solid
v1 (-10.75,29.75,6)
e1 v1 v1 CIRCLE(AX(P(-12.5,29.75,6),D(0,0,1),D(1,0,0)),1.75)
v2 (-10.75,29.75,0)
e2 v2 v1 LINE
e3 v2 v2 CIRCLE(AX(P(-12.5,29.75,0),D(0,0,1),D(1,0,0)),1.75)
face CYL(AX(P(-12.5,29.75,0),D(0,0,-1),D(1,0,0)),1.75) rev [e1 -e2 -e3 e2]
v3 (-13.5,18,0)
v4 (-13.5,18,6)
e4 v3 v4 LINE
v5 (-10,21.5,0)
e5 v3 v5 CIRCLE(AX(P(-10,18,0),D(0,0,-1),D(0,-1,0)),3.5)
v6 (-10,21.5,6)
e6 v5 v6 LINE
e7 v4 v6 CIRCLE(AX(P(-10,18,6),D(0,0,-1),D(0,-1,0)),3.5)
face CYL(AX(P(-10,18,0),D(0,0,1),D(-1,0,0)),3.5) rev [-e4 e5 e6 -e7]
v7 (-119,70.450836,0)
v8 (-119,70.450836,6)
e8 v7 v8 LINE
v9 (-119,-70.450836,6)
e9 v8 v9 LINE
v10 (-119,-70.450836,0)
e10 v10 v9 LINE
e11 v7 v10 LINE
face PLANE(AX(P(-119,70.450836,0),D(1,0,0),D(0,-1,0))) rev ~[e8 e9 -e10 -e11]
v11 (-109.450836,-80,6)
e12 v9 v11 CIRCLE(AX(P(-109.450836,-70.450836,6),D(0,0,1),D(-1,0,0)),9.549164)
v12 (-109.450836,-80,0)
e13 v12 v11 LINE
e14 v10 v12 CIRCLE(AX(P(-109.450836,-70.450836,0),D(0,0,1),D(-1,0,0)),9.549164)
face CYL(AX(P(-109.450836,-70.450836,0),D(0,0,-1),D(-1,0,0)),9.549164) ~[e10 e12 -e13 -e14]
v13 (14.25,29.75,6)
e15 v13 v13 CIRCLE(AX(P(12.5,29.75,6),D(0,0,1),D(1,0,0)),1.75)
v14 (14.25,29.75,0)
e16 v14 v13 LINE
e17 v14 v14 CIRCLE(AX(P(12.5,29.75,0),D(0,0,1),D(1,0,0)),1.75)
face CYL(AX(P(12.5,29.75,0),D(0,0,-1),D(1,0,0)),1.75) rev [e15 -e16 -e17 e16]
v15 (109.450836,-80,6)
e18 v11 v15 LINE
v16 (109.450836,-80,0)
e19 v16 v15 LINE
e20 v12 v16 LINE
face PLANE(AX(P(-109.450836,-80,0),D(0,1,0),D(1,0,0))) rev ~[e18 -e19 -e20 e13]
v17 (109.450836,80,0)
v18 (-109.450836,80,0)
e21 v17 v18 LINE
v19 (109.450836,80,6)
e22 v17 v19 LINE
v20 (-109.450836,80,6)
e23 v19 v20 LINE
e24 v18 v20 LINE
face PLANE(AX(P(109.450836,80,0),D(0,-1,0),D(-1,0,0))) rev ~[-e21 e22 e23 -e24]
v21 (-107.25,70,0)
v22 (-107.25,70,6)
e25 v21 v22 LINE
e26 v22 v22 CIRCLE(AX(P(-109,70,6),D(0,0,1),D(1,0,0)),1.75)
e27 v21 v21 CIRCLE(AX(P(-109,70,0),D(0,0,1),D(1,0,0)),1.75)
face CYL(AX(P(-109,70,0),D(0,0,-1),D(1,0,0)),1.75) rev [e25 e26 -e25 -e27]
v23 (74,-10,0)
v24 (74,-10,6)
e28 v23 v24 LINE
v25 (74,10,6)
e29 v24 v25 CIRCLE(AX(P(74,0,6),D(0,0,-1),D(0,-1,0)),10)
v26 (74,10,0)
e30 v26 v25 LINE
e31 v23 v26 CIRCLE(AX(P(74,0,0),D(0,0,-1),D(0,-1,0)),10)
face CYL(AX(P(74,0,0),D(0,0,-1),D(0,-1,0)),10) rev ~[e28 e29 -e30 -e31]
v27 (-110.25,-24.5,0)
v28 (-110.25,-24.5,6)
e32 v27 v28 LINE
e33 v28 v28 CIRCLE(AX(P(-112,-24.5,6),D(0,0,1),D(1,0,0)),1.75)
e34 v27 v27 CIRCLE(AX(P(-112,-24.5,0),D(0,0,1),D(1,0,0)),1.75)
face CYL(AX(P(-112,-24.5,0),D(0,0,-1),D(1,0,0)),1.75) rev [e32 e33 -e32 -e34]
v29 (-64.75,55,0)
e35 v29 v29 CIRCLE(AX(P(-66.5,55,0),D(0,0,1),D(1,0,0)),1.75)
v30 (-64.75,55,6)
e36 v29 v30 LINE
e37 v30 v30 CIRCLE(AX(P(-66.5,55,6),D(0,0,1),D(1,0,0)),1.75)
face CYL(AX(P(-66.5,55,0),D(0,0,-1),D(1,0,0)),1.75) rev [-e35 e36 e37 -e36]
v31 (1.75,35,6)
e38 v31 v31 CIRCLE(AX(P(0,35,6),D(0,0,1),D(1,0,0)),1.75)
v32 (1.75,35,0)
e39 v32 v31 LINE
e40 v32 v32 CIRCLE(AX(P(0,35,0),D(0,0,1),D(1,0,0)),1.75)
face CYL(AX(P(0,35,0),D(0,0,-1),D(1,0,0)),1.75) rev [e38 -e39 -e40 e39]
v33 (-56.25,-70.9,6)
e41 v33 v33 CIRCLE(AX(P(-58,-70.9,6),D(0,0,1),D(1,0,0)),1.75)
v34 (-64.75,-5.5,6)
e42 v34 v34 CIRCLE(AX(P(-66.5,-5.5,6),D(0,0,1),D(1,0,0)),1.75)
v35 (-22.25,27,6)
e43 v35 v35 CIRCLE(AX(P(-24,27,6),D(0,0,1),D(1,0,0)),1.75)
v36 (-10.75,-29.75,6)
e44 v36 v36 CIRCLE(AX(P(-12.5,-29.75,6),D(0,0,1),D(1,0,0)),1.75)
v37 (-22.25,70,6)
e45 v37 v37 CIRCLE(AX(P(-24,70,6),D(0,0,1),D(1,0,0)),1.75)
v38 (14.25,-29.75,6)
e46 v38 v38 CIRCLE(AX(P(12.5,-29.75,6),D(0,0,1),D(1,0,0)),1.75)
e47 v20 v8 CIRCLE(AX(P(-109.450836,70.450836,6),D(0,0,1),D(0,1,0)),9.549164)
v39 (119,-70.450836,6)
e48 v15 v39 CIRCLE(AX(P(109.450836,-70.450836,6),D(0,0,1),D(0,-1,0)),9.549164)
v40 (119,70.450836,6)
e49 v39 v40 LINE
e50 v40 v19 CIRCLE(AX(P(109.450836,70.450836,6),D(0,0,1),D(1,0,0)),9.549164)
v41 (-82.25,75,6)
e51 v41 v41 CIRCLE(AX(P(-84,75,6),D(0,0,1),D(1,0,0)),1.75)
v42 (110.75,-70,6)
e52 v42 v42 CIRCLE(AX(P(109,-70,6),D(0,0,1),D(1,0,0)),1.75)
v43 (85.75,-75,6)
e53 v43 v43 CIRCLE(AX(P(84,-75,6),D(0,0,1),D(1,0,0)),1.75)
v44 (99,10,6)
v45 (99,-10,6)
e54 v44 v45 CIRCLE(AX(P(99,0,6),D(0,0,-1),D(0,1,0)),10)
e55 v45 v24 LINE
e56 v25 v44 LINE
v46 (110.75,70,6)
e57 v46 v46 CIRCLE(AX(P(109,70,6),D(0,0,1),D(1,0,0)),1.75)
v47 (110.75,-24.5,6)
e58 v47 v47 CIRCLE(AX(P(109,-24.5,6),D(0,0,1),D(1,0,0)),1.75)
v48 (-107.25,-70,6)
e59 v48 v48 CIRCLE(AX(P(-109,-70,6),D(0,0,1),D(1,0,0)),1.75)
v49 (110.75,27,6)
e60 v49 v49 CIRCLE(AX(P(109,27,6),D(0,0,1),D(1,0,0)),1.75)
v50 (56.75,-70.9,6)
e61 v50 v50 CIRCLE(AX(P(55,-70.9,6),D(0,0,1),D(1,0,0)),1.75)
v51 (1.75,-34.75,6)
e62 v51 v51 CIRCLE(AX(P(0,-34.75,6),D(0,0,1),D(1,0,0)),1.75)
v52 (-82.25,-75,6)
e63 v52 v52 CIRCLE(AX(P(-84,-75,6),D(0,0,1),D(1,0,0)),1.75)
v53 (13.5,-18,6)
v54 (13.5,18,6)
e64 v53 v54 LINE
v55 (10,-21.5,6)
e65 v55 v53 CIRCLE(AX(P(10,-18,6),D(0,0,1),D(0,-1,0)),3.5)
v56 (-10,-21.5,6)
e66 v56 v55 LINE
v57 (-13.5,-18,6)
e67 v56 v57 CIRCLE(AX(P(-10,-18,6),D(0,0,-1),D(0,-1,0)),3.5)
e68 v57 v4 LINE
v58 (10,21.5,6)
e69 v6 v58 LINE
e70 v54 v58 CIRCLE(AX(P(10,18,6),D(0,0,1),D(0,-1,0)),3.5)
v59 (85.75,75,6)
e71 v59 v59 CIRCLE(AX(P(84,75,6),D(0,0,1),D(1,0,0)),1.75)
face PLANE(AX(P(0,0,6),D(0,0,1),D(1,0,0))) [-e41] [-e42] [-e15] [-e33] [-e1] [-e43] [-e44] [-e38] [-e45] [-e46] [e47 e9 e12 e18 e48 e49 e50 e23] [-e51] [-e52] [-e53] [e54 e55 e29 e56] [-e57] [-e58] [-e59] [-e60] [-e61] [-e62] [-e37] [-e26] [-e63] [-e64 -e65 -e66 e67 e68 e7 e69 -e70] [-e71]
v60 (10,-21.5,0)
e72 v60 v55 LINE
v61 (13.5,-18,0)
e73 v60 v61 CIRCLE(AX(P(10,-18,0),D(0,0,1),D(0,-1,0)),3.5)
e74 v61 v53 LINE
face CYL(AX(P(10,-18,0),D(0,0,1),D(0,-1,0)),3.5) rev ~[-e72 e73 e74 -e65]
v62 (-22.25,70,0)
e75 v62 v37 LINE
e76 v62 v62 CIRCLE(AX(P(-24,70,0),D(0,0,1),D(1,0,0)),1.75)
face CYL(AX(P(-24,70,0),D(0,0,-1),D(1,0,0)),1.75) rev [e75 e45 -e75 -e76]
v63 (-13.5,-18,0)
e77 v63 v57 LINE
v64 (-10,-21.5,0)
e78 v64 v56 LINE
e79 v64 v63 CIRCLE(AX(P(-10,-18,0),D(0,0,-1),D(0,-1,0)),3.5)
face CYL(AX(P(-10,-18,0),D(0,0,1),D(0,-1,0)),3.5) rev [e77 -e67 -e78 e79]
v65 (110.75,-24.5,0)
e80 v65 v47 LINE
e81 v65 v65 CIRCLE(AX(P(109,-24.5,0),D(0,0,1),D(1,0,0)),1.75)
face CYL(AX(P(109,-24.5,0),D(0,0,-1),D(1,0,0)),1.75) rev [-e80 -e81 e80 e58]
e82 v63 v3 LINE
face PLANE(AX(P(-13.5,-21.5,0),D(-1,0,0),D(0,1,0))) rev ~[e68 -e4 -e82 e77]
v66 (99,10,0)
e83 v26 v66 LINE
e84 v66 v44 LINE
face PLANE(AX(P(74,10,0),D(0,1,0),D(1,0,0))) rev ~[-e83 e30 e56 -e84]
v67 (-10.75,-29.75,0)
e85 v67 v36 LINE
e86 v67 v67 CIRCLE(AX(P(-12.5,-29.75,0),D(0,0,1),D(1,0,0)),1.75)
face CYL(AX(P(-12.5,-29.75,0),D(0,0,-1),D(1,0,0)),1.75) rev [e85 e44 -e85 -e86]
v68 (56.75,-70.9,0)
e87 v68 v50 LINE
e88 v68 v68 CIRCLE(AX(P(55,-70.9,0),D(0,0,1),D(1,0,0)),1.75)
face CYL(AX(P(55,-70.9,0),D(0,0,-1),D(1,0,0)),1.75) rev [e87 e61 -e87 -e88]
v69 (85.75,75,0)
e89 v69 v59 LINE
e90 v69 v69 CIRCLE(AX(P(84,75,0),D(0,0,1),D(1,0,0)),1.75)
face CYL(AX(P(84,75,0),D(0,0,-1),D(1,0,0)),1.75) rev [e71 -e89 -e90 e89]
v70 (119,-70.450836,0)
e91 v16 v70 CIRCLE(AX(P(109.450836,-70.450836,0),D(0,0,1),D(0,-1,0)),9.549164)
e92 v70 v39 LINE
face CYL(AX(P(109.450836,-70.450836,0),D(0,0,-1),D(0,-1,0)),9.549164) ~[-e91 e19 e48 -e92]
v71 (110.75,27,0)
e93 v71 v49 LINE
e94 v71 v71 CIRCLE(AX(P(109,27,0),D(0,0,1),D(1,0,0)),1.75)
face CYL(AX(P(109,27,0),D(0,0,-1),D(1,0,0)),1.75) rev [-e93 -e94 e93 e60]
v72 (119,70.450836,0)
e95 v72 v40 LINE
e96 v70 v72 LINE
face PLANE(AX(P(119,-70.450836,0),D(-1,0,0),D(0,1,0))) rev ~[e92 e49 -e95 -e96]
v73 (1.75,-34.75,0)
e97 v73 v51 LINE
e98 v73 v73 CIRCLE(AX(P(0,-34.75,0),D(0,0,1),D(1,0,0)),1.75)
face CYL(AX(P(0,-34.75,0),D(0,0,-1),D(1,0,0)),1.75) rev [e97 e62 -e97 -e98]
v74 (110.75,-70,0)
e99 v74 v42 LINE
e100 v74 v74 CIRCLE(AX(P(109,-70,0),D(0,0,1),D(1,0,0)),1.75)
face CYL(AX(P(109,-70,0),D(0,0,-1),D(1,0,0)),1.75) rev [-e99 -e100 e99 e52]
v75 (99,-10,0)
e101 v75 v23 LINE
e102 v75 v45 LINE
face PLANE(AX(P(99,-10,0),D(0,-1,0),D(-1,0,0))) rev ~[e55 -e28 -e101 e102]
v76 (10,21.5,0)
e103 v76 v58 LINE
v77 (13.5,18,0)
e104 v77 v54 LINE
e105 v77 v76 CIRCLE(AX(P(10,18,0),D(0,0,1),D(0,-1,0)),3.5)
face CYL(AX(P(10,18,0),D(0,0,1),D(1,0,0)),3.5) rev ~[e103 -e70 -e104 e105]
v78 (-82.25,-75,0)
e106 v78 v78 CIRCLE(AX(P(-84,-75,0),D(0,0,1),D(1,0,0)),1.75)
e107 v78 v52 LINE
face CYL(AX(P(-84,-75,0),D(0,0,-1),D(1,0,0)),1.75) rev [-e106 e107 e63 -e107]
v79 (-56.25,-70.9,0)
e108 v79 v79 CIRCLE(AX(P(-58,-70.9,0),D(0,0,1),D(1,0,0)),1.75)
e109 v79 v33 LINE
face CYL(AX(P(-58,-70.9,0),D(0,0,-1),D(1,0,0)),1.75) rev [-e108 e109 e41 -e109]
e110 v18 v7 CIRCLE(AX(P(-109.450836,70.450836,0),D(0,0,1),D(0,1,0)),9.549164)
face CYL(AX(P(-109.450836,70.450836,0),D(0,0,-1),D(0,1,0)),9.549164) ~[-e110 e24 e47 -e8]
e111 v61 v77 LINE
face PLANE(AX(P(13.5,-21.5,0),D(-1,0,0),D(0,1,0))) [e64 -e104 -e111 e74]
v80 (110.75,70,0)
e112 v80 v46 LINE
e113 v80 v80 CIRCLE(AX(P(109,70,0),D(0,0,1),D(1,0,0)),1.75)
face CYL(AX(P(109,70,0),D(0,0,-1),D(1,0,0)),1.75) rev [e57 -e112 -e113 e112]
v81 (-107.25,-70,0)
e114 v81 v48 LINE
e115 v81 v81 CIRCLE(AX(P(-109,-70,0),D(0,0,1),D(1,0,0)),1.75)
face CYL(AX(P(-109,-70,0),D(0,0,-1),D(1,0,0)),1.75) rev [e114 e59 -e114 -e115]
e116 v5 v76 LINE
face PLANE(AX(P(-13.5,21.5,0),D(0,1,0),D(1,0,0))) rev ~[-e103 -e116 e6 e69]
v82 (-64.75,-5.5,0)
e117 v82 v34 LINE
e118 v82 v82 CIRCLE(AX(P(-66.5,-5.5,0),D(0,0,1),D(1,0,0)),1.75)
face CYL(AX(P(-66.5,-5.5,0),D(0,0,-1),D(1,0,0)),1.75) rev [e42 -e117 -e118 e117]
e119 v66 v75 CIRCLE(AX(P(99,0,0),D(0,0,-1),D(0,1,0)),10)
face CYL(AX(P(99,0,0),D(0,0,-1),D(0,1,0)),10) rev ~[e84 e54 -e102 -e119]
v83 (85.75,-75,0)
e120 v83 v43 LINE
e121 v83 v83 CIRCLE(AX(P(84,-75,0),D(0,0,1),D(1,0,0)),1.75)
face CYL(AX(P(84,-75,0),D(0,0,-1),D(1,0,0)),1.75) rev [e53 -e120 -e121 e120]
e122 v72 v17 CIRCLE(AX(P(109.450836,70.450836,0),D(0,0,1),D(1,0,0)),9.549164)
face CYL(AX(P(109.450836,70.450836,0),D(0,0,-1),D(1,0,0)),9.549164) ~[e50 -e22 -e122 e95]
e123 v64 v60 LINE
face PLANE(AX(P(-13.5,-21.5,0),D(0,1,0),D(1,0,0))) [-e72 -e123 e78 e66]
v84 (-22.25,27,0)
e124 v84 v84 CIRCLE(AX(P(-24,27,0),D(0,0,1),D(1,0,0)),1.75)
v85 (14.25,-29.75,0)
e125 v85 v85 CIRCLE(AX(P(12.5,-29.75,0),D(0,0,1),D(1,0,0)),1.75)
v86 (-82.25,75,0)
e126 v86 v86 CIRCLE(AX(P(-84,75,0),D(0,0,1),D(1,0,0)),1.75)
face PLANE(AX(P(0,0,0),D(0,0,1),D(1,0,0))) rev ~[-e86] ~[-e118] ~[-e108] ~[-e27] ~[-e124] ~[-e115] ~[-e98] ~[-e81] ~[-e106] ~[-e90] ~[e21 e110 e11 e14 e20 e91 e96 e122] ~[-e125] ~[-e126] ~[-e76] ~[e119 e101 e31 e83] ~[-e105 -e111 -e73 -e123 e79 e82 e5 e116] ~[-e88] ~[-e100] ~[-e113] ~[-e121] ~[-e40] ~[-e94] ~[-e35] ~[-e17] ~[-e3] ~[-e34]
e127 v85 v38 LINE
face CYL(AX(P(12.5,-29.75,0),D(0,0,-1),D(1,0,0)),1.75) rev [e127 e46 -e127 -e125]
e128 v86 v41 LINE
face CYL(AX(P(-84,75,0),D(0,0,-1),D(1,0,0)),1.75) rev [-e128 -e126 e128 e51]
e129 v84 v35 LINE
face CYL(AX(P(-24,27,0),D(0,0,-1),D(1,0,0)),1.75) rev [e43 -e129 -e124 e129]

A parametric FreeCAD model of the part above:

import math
import FreeCAD as App
import Part
import Sketcher
from FreeCAD import Vector


def edges_at(feature, points):
    """Names of the edges that pass closest to the given points."""
    edges = feature.Shape.Edges
    near = lambda p: min(range(len(edges)), key=lambda i: edges[i].distToShape(Part.Vertex(*p))[0])
    return sorted({f"Edge{near(p) + 1}" for p in points})


def add_polygon(sketch, points):
    """Adds a closed chain of lines whose ends are joined by coincident constraints."""
    first, n = sketch.GeometryCount, len(points)
    for a, b in zip(points, points[1:] + points[:1]):
        sketch.addGeometry(Part.LineSegment(App.Vector(*a, 0), App.Vector(*b, 0)), False)
    for i in range(n):
        sketch.addConstraint(Sketcher.Constraint("Coincident", first + i, 2, first + (i + 1) % n, 1))

doc = App.newDocument("Part")
body = doc.addObject("PartDesign::Body", "Body")

# Sketch on XY plane
sketch1 = body.newObject("Sketcher::SketchObject", "Sketch")
sketch1.AttachmentSupport = (doc.getObject("XY_Plane"), [""])
sketch1.MapMode = "FlatFace"
sketch1.addGeometry(Part.LineSegment(Vector(109.5, 80, 0), Vector(-109.5, 80, 0)), False)  # 0
sketch1.addGeometry(Part.ArcOfCircle(Part.Circle(Vector(-109.5, 70.5, 0), Vector(0, 0, 1), 9.5), math.radians(90), math.radians(180)), False)  # 1
sketch1.addGeometry(Part.LineSegment(Vector(-119, 70.5, 0), Vector(-119, -70.5, 0)), False)  # 2
sketch1.addGeometry(Part.ArcOfCircle(Part.Circle(Vector(-109.5, -70.5, 0), Vector(0, 0, 1), 9.5), math.radians(-180), math.radians(-90)), False)  # 3
sketch1.addGeometry(Part.LineSegment(Vector(-109.5, -80, 0), Vector(109.5, -80, 0)), False)  # 4
sketch1.addGeometry(Part.ArcOfCircle(Part.Circle(Vector(109.5, -70.5, 0), Vector(0, 0, 1), 9.5), math.radians(-90), math.radians(0)), False)  # 5
sketch1.addGeometry(Part.LineSegment(Vector(119, -70.5, 0), Vector(119, 70.5, 0)), False)  # 6
sketch1.addGeometry(Part.ArcOfCircle(Part.Circle(Vector(109.5, 70.5, 0), Vector(0, 0, 1), 9.5), math.radians(0), math.radians(90)), False)  # 7
sketch1.addGeometry(Part.Circle(Vector(-109, -70, 0), Vector(0, 0, 1), 1.8), False)  # 8
sketch1.addGeometry(Part.Circle(Vector(-84, -75, 0), Vector(0, 0, 1), 1.8), False)  # 9
sketch1.addGeometry(Part.Circle(Vector(-58, -70.9, 0), Vector(0, 0, 1), 1.8), False)  # 10
sketch1.addGeometry(Part.Circle(Vector(-112, -24.5, 0), Vector(0, 0, 1), 1.8), False)  # 11
sketch1.addGeometry(Part.Circle(Vector(-66.5, -5.5, 0), Vector(0, 0, 1), 1.8), False)  # 12
sketch1.addGeometry(Part.Circle(Vector(-12.5, -29.8, 0), Vector(0, 0, 1), 1.8), False)  # 13
sketch1.addGeometry(Part.Circle(Vector(55, -70.9, 0), Vector(0, 0, 1), 1.8), False)  # 14
sketch1.addGeometry(Part.Circle(Vector(84, -75, 0), Vector(0, 0, 1), 1.8), False)  # 15
sketch1.addGeometry(Part.Circle(Vector(109, -70, 0), Vector(0, 0, 1), 1.8), False)  # 16
sketch1.addGeometry(Part.Circle(Vector(0, -34.8, 0), Vector(0, 0, 1), 1.8), False)  # 17
sketch1.addGeometry(Part.Circle(Vector(12.5, -29.8, 0), Vector(0, 0, 1), 1.8), False)  # 18
sketch1.addGeometry(Part.Circle(Vector(109, -24.5, 0), Vector(0, 0, 1), 1.8), False)  # 19
sketch1.addGeometry(Part.Circle(Vector(-24, 27, 0), Vector(0, 0, 1), 1.8), False)  # 20
sketch1.addGeometry(Part.Circle(Vector(-12.5, 29.8, 0), Vector(0, 0, 1), 1.8), False)  # 21
sketch1.addGeometry(Part.Circle(Vector(-66.5, 55, 0), Vector(0, 0, 1), 1.8), False)  # 22
sketch1.addGeometry(Part.Circle(Vector(-109, 70, 0), Vector(0, 0, 1), 1.8), False)  # 23
sketch1.addGeometry(Part.Circle(Vector(-84, 75, 0), Vector(0, 0, 1), 1.8), False)  # 24
sketch1.addGeometry(Part.Circle(Vector(-24, 70, 0), Vector(0, 0, 1), 1.8), False)  # 25
add_polygon(sketch1, [(13.5, -21.5), (-13.5, -21.5), (-13.5, 21.5), (13.5, 21.5)])  # lines 26-29
sketch1.addGeometry(Part.Circle(Vector(12.5, 29.8, 0), Vector(0, 0, 1), 1.8), False)  # 30
sketch1.addGeometry(Part.Circle(Vector(0, 35, 0), Vector(0, 0, 1), 1.8), False)  # 31
sketch1.addGeometry(Part.ArcOfCircle(Part.Circle(Vector(99, 0, 0), Vector(0, 0, 1), 10), math.radians(-90), math.radians(90)), False)  # 32
sketch1.addGeometry(Part.LineSegment(Vector(99, -10, 0), Vector(74, -10, 0)), False)  # 33
sketch1.addGeometry(Part.ArcOfCircle(Part.Circle(Vector(74, 0, 0), Vector(0, 0, 1), 10), math.radians(90), math.radians(270)), False)  # 34
sketch1.addGeometry(Part.LineSegment(Vector(74, 10, 0), Vector(99, 10, 0)), False)  # 35
sketch1.addGeometry(Part.Circle(Vector(109, 27, 0), Vector(0, 0, 1), 1.8), False)  # 36
sketch1.addGeometry(Part.Circle(Vector(84, 75, 0), Vector(0, 0, 1), 1.8), False)  # 37
sketch1.addGeometry(Part.Circle(Vector(109, 70, 0), Vector(0, 0, 1), 1.8), False)  # 38
sketch1.addConstraint([
    Sketcher.Constraint("Tangent", 0, 2, 1, 1),
    Sketcher.Constraint("Tangent", 1, 2, 2, 1),
    Sketcher.Constraint("Tangent", 2, 2, 3, 1),
    Sketcher.Constraint("Tangent", 3, 2, 4, 1),
    Sketcher.Constraint("Tangent", 4, 2, 5, 1),
    Sketcher.Constraint("Tangent", 5, 2, 6, 1),
    Sketcher.Constraint("Tangent", 6, 2, 7, 1),
    Sketcher.Constraint("Tangent", 7, 2, 0, 1),
    Sketcher.Constraint("Tangent", 32, 1, 33, 1),
    Sketcher.Constraint("Tangent", 33, 2, 34, 2),
    Sketcher.Constraint("Tangent", 34, 1, 35, 1),
    Sketcher.Constraint("Tangent", 35, 2, 32, 2),
    Sketcher.Constraint("Horizontal", 0),
    Sketcher.Constraint("Vertical", 2),
    Sketcher.Constraint("Horizontal", 4),
    Sketcher.Constraint("Vertical", 6),
    Sketcher.Constraint("Horizontal", 26),
    Sketcher.Constraint("Vertical", 27),
    Sketcher.Constraint("Horizontal", 28),
    Sketcher.Constraint("Vertical", 29),
    Sketcher.Constraint("Horizontal", 33),
    Sketcher.Constraint("Horizontal", 35),
    Sketcher.Constraint("Equal", 1, 3),
    Sketcher.Constraint("Equal", 3, 5),
    Sketcher.Constraint("Equal", 5, 7),
    Sketcher.Constraint("Equal", 8, 9),
    Sketcher.Constraint("Equal", 9, 10),
    Sketcher.Constraint("Equal", 10, 11),
    Sketcher.Constraint("Equal", 11, 12),
    Sketcher.Constraint("Equal", 12, 13),
    Sketcher.Constraint("Equal", 13, 14),
    Sketcher.Constraint("Equal", 14, 15),
    Sketcher.Constraint("Equal", 15, 16),
    Sketcher.Constraint("Equal", 16, 17),
    Sketcher.Constraint("Equal", 17, 18),
    Sketcher.Constraint("Equal", 18, 19),
    Sketcher.Constraint("Equal", 19, 20),
    Sketcher.Constraint("Equal", 20, 21),
    Sketcher.Constraint("Equal", 21, 22),
    Sketcher.Constraint("Equal", 22, 23),
    Sketcher.Constraint("Equal", 23, 24),
    Sketcher.Constraint("Equal", 24, 25),
    Sketcher.Constraint("Equal", 25, 30),
    Sketcher.Constraint("Equal", 30, 31),
    Sketcher.Constraint("Equal", 31, 36),
    Sketcher.Constraint("Equal", 36, 37),
    Sketcher.Constraint("Equal", 37, 38),
    Sketcher.Constraint("Symmetric", 1, 3, 5, 3, -1, 1),
    Sketcher.Constraint("Symmetric", 18, 3, 21, 3, -1, 1),
    Sketcher.Constraint("Symmetric", 16, 3, 23, 3, -1, 1),
    Sketcher.Constraint("Symmetric", 15, 3, 24, 3, -1, 1),
    Sketcher.Constraint("Symmetric", 13, 3, 30, 3, -1, 1),
    Sketcher.Constraint("Symmetric", 9, 3, 37, 3, -1, 1),
    Sketcher.Constraint("Symmetric", 8, 3, 38, 3, -1, 1),
    Sketcher.Constraint("Symmetric", 26, 2, 28, 2, -1, 1),
    Sketcher.Constraint("Symmetric", 9, 3, 15, 3, -2),
    Sketcher.Constraint("Symmetric", 8, 3, 16, 3, -2),
    Sketcher.Constraint("Symmetric", 13, 3, 18, 3, -2),
    Sketcher.Constraint("PointOnObject", 17, 3, -2),
    Sketcher.Constraint("PointOnObject", 31, 3, -2),
    Sketcher.Constraint("PointOnObject", 32, 3, -1),
    Sketcher.Constraint("Horizontal", 10, 3, 14, 3),
    Sketcher.Constraint("Horizontal", 11, 3, 19, 3),
    Sketcher.Constraint("Horizontal", 23, 3, 25, 3),
    Sketcher.Constraint("Horizontal", 20, 3, 36, 3),
    Sketcher.Constraint("Vertical", 16, 3, 19, 3),
    Sketcher.Constraint("Vertical", 12, 3, 22, 3),
    Sketcher.Constraint("Vertical", 20, 3, 25, 3),
    Sketcher.Constraint("Vertical", 19, 3, 36, 3),
    Sketcher.Constraint("Radius", 32, 10.0),
    Sketcher.Constraint("Diameter", 8, 3.5),
    Sketcher.Constraint("DistanceX", 26, 2, 26, 1, 27.0),
    Sketcher.Constraint("DistanceX", 33, 2, 33, 1, 25.0),
    Sketcher.Constraint("DistanceY", 27, 1, 27, 2, 43.0),
    Sketcher.Constraint("DistanceX", 8, 3, -1, 1, 109.0),
    Sketcher.Constraint("DistanceY", 8, 3, -1, 1, 70.0),
    Sketcher.Constraint("DistanceX", 9, 3, -1, 1, 84.0),
    Sketcher.Constraint("DistanceY", 9, 3, -1, 1, 75.0),
    Sketcher.Constraint("DistanceX", 10, 3, -1, 1, 58.0),
    Sketcher.Constraint("DistanceX", 11, 3, -1, 1, 112.0),
    Sketcher.Constraint("DistanceX", -1, 1, 14, 3, 55.0),
    Sketcher.Constraint("DistanceX", 20, 3, -1, 1, 24.0),
    Sketcher.Constraint("DistanceY", -1, 1, 20, 3, 27.0),
    Sketcher.Constraint("DistanceY", -1, 1, 22, 3, 55.0),
    Sketcher.Constraint("DistanceY", -1, 1, 31, 3, 35.0),
    Sketcher.Constraint("DistanceX", -1, 1, 32, 3, 99.0),
    Sketcher.Constraint("DistanceY", -1, 1, 0, 2, 80.0),
    Sketcher.Constraint("DistanceX", 1, 2, -1, 1, 119.0),
    Sketcher.Constraint("DistanceY", 11, 3, 12, 3, 19.0),
    Sketcher.Constraint("DistanceX", 12, 3, 13, 3, 54.0),
    Sketcher.Constraint("DistanceY", 17, 3, 13, 3, 5.0),
    Sketcher.Constraint("DistanceX", 13, 3, 18, 3, 25.0),
    Sketcher.Constraint("DistanceY", 10, 3, -1, 1, 70.9),
    Sketcher.Constraint("DistanceY", 11, 3, -1, 1, 24.5),
    Sketcher.Constraint("DistanceY", 13, 3, 21, 3, 59.5),
    Sketcher.Constraint("Radius", 1, 9.549164),
])
pad1 = body.newObject("PartDesign::Pad", "Pad")
pad1.Profile = sketch1
pad1.Length = 6
doc.recompute()

fillet = body.newObject("PartDesign::Fillet", "Fillet")
fillet.Base = (pad1, edges_at(pad1, [
    (13.5, 21.5, 3),
    (-13.5, 21.5, 3),
    (-13.5, -21.5, 3),
    (13.5, -21.5, 3),
]))
fillet.Radius = 3.5

doc.recompute()
